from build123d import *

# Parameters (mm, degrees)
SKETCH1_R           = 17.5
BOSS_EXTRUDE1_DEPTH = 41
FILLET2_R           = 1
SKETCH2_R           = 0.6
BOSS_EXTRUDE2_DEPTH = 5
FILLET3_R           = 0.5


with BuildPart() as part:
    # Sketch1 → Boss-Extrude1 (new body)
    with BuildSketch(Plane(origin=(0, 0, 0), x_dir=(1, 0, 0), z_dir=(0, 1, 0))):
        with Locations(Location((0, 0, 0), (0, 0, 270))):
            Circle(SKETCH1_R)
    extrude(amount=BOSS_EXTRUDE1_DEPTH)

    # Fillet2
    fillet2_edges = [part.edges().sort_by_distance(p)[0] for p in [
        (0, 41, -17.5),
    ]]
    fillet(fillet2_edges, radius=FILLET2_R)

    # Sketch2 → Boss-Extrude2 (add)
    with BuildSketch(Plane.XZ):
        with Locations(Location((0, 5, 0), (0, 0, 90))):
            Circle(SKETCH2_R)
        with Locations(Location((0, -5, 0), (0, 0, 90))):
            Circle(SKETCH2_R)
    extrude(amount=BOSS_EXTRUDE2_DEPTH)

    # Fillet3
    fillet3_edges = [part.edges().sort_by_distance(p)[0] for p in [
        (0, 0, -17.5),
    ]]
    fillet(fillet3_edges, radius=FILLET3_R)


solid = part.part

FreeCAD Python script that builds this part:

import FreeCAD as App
import Part
import Sketcher
Q = App.Units.Quantity


def edges_at(feature, points):
    """Names of the edges that pass closest to the given points."""
    edges = feature.Shape.Edges
    near = lambda p: min(range(len(edges)), key=lambda i: edges[i].distToShape(Part.Vertex(*p))[0])
    return sorted({f"Edge{near(p) + 1}" for p in points})

doc = App.newDocument("Part")
body = doc.addObject("PartDesign::Body", "Body")

# Sketch on XZ plane
sketch1 = body.newObject("Sketcher::SketchObject", "Sketch")
sketch1.AttachmentSupport = (doc.getObject("XZ_Plane"), [""])
sketch1.MapMode = "FlatFace"
sketch1.addGeometry(Part.Circle(App.Vector(0, 0, 0), App.Vector(0, 0, 1), 18), False)
sketch1.addConstraint(Sketcher.Constraint("Coincident", 0, 3, -1, 1))
sketch1.addConstraint(Sketcher.Constraint("Diameter", 0, Q("35 mm")))
pad1 = body.newObject("PartDesign::Pad", "Pad")
pad1.Profile = sketch1
pad1.Length = 41
pad1.Reversed = True
doc.recompute()

fillet = body.newObject("PartDesign::Fillet", "Fillet")
fillet.Base = (pad1, edges_at(pad1, [(0, 41, -17.5)]))
fillet.Radius = 1

# Sketch on XZ plane
sketch2 = body.newObject("Sketcher::SketchObject", "Sketch001")
sketch2.AttachmentSupport = (doc.getObject("XZ_Plane"), [""])
sketch2.MapMode = "FlatFace"
sketch2.addGeometry(Part.Circle(App.Vector(0, 5, 0), App.Vector(0, 0, 1), 0.6), False)
sketch2.addGeometry(Part.Circle(App.Vector(0, -5, 0), App.Vector(0, 0, 1), 0.6), False)
sketch2.addConstraint(Sketcher.Constraint("Equal", 0, 1))
sketch2.addConstraint(Sketcher.Constraint("Symmetric", 0, 3, 1, 3, -1, 1))
sketch2.addConstraint(Sketcher.Constraint("PointOnObject", 0, 3, -2))
sketch2.addConstraint(Sketcher.Constraint("Diameter", 0, Q("1.2 mm")))
sketch2.addConstraint(Sketcher.Constraint("DistanceY", -1, 1, 0, 3, Q("5 mm")))
pad2 = body.newObject("PartDesign::Pad", "Pad001")
pad2.Profile = sketch2
pad2.Length = 5
doc.recompute()

fillet2 = body.newObject("PartDesign::Fillet", "Fillet001")
fillet2.Base = (pad2, edges_at(pad2, [(0, 0, -17.5)]))
fillet2.Radius = 0.5

doc.recompute()
